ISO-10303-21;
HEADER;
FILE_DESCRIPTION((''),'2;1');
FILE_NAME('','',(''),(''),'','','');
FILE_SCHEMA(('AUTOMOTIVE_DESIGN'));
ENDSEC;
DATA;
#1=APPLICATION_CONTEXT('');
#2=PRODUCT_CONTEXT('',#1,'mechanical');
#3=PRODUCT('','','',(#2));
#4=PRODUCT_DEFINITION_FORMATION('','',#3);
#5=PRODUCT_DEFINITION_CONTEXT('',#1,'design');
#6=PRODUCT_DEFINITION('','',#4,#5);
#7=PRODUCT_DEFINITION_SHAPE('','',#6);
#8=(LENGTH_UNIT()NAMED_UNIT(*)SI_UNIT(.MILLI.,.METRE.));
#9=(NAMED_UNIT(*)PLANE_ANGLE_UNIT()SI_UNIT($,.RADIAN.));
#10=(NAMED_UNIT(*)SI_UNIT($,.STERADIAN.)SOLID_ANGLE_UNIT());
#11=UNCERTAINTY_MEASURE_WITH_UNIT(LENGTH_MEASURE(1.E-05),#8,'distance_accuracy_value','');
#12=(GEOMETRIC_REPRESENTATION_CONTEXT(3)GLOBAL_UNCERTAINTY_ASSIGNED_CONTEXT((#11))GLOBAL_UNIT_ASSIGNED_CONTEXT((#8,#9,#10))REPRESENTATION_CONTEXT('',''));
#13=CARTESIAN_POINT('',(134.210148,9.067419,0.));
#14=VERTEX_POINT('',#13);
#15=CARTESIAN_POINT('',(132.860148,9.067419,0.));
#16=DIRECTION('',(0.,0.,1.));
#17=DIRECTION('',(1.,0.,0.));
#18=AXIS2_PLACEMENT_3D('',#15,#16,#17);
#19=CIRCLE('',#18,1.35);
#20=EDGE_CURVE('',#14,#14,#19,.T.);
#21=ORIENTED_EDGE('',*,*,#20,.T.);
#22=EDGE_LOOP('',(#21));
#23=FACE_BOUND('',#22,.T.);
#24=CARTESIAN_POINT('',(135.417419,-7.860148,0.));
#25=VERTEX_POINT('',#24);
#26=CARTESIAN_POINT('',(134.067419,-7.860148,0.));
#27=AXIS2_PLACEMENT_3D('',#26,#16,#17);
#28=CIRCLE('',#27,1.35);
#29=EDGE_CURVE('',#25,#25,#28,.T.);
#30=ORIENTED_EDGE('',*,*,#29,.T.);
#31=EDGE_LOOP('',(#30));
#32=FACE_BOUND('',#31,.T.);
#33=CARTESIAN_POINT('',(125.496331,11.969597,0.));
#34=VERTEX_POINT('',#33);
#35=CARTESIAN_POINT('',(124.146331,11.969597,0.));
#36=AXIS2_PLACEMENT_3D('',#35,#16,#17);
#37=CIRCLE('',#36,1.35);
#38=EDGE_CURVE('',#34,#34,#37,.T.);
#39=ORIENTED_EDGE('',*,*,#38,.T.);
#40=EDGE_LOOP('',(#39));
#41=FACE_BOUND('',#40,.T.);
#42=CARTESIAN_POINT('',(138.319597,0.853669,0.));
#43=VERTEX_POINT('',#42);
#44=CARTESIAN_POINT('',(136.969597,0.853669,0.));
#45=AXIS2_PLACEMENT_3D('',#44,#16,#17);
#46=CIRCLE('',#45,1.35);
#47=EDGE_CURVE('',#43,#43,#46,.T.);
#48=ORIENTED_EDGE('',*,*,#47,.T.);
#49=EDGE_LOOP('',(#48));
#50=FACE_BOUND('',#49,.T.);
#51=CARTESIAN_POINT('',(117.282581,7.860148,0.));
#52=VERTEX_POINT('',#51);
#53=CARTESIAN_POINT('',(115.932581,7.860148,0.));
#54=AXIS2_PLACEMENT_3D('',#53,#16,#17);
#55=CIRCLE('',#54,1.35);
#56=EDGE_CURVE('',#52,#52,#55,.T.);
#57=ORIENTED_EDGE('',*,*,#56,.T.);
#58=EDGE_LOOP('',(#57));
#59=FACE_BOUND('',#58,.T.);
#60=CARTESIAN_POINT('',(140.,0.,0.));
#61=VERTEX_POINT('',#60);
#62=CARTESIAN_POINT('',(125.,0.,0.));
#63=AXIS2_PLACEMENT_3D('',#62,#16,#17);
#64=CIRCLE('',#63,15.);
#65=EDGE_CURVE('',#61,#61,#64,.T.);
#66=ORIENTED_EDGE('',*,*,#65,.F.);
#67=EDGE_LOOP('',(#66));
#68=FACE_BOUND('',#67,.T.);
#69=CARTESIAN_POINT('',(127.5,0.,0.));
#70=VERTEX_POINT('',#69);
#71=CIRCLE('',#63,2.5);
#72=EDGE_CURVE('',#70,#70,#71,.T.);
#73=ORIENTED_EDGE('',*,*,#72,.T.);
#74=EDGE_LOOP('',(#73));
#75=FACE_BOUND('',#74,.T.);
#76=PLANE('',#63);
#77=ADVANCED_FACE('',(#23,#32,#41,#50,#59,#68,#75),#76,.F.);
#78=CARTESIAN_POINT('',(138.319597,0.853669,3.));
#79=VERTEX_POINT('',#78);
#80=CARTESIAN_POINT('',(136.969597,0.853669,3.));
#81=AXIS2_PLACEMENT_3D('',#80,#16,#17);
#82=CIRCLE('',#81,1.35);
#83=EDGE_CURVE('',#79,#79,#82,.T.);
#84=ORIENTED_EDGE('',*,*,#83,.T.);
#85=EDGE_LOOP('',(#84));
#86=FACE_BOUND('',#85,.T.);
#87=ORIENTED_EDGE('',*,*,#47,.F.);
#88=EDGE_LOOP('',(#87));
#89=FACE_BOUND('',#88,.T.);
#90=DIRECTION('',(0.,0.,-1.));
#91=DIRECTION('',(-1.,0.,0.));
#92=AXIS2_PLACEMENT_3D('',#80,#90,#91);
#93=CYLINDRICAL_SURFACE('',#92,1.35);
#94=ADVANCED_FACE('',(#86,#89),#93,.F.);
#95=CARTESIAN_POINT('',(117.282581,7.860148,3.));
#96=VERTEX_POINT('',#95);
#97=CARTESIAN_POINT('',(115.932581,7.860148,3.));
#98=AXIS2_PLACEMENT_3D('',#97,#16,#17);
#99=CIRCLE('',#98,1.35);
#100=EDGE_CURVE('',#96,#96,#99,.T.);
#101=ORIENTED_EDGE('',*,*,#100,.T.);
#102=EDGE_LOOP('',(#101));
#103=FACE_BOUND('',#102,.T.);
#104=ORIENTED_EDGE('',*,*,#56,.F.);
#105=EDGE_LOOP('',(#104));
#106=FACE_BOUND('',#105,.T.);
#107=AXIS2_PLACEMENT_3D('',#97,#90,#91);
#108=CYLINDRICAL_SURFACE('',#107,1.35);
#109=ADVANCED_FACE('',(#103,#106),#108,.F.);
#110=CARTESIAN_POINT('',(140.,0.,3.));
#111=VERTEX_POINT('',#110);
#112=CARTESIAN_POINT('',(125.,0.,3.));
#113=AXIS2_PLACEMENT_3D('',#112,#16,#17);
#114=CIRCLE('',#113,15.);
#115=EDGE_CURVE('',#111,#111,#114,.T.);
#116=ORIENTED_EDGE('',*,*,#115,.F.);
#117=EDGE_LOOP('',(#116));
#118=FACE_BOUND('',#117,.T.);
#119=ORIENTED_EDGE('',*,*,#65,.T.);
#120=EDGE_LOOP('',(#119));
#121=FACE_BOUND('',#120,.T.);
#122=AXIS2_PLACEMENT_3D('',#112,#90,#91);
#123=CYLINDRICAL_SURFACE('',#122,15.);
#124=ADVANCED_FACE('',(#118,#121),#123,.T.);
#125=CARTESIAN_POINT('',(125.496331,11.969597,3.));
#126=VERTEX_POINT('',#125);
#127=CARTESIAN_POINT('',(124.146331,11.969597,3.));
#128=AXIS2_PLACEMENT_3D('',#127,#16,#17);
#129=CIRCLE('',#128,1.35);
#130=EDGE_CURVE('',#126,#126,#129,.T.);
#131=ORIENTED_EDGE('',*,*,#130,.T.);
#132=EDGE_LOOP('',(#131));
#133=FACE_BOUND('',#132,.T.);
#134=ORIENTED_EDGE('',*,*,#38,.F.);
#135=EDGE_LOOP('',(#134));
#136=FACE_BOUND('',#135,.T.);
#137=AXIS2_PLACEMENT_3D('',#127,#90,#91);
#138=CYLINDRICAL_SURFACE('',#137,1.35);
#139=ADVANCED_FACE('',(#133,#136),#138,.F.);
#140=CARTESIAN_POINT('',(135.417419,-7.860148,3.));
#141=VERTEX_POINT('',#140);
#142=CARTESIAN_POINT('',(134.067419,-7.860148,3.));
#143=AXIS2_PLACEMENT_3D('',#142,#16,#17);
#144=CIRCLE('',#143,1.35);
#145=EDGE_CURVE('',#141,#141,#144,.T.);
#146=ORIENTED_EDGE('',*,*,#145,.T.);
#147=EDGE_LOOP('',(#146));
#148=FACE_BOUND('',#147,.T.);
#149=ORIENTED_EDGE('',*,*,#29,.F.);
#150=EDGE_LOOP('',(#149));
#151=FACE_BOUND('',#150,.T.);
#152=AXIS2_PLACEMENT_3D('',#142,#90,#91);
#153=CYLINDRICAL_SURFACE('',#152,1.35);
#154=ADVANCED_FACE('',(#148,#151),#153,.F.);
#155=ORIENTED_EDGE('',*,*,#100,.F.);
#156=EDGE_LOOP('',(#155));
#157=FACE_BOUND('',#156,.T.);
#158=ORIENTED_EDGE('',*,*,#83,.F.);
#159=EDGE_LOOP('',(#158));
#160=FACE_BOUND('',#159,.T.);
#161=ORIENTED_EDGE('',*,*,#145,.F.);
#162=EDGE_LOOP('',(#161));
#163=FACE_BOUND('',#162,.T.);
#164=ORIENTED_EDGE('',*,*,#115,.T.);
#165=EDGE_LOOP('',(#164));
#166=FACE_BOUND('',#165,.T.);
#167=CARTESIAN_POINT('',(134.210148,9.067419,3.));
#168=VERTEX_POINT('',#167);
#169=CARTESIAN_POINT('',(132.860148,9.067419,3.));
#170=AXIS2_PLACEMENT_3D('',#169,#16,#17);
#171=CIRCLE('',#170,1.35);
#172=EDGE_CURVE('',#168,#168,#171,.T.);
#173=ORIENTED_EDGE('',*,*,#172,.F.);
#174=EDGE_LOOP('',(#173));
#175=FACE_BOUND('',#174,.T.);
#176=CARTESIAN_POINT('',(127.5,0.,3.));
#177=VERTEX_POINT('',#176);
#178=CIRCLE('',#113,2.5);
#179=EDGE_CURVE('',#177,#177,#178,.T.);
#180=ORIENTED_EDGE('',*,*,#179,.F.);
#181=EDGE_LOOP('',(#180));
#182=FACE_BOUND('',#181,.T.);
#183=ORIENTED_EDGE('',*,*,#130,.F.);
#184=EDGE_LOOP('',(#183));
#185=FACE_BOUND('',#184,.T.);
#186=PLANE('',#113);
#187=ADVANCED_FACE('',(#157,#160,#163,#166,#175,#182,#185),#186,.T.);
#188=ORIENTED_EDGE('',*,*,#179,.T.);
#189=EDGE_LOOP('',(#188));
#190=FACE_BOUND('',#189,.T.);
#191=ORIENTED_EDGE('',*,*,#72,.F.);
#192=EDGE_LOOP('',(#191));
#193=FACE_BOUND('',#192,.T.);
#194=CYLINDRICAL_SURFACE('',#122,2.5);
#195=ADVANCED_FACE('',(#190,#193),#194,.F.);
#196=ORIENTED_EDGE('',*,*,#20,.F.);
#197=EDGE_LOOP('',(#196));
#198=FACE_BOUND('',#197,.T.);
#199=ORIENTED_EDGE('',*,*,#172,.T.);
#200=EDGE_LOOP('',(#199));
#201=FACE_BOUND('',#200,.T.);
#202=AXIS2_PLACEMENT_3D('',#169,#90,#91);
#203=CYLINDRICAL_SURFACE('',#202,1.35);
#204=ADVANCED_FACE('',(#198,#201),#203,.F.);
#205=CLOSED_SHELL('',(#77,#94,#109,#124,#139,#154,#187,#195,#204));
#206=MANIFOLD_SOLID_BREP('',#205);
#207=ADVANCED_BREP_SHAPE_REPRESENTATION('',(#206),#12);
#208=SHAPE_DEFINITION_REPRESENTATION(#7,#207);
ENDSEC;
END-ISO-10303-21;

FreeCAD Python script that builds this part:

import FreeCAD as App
import Part
import Sketcher

V = App.Vector
Q = App.Units.Quantity

doc = App.newDocument("Part")
body = doc.addObject("PartDesign::Body", "Body")

# Sketch on XY plane
sketch1 = body.newObject("Sketcher::SketchObject", "Sketch")
sketch1.AttachmentSupport = (doc.getObject("XY_Plane"), [""])
sketch1.MapMode = "FlatFace"
sketch1.addGeometry([
    Part.Circle(V(125, 0, 0), V(0, 0, 1), 15),  # 0
    Part.Circle(V(125, 0, 0), V(0, 0, 1), 2.5),  # 1
    Part.Circle(V(134.1, -7.9, 0), V(0, 0, 1), 1.4),  # 2
    Part.Circle(V(137, 0.9, 0), V(0, 0, 1), 1.4),  # 3
    Part.Circle(V(115.9, 7.9, 0), V(0, 0, 1), 1.4),  # 4
    Part.Circle(V(124.1, 12, 0), V(0, 0, 1), 1.4),  # 5
    Part.Circle(V(132.9, 9.1, 0), V(0, 0, 1), 1.4),  # 6
], False)
sketch1.addConstraint([
    Sketcher.Constraint("Coincident", 1, 3, 0, 3),
    Sketcher.Constraint("Equal", 2, 3),
    Sketcher.Constraint("Equal", 3, 4),
    Sketcher.Constraint("Equal", 4, 5),
    Sketcher.Constraint("Equal", 5, 6),
    Sketcher.Constraint("PointOnObject", 0, 3, -1),
    Sketcher.Constraint("Diameter", 0, Q("30 mm")),
    Sketcher.Constraint("Diameter", 1, Q("5 mm")),
    Sketcher.Constraint("Diameter", 2, Q("2.7 mm")),
    Sketcher.Constraint("DistanceX", -1, 1, 0, 3, Q("125 mm")),
    Sketcher.Constraint("DistanceX", -1, 1, 2, 3, Q("134.067419 mm")),
    Sketcher.Constraint("DistanceY", -1, 1, 3, 3, Q("0.853669 mm")),
    Sketcher.Constraint("DistanceX", -1, 1, 4, 3, Q("115.932581 mm")),
    Sketcher.Constraint("DistanceX", -1, 1, 5, 3, Q("124.146331 mm")),
    Sketcher.Constraint("DistanceY", -1, 1, 6, 3, Q("9.067419 mm")),
    Sketcher.Constraint("DistanceX", 2, 3, 3, 3, Q("2.902178 mm")),
    Sketcher.Constraint("DistanceY", 3, 3, 4, 3, Q("7.006478 mm")),
    Sketcher.Constraint("DistanceY", 4, 3, 5, 3, Q("4.109449 mm")),
    Sketcher.Constraint("DistanceX", 6, 3, 3, 3, Q("4.109449 mm")),
    Sketcher.Constraint("DistanceY", 2, 3, -1, 1, Q("7.860148 mm")),
])
pad1 = body.newObject("PartDesign::Pad", "Pad")
pad1.Profile = sketch1
pad1.Length = 3

doc.recompute()
